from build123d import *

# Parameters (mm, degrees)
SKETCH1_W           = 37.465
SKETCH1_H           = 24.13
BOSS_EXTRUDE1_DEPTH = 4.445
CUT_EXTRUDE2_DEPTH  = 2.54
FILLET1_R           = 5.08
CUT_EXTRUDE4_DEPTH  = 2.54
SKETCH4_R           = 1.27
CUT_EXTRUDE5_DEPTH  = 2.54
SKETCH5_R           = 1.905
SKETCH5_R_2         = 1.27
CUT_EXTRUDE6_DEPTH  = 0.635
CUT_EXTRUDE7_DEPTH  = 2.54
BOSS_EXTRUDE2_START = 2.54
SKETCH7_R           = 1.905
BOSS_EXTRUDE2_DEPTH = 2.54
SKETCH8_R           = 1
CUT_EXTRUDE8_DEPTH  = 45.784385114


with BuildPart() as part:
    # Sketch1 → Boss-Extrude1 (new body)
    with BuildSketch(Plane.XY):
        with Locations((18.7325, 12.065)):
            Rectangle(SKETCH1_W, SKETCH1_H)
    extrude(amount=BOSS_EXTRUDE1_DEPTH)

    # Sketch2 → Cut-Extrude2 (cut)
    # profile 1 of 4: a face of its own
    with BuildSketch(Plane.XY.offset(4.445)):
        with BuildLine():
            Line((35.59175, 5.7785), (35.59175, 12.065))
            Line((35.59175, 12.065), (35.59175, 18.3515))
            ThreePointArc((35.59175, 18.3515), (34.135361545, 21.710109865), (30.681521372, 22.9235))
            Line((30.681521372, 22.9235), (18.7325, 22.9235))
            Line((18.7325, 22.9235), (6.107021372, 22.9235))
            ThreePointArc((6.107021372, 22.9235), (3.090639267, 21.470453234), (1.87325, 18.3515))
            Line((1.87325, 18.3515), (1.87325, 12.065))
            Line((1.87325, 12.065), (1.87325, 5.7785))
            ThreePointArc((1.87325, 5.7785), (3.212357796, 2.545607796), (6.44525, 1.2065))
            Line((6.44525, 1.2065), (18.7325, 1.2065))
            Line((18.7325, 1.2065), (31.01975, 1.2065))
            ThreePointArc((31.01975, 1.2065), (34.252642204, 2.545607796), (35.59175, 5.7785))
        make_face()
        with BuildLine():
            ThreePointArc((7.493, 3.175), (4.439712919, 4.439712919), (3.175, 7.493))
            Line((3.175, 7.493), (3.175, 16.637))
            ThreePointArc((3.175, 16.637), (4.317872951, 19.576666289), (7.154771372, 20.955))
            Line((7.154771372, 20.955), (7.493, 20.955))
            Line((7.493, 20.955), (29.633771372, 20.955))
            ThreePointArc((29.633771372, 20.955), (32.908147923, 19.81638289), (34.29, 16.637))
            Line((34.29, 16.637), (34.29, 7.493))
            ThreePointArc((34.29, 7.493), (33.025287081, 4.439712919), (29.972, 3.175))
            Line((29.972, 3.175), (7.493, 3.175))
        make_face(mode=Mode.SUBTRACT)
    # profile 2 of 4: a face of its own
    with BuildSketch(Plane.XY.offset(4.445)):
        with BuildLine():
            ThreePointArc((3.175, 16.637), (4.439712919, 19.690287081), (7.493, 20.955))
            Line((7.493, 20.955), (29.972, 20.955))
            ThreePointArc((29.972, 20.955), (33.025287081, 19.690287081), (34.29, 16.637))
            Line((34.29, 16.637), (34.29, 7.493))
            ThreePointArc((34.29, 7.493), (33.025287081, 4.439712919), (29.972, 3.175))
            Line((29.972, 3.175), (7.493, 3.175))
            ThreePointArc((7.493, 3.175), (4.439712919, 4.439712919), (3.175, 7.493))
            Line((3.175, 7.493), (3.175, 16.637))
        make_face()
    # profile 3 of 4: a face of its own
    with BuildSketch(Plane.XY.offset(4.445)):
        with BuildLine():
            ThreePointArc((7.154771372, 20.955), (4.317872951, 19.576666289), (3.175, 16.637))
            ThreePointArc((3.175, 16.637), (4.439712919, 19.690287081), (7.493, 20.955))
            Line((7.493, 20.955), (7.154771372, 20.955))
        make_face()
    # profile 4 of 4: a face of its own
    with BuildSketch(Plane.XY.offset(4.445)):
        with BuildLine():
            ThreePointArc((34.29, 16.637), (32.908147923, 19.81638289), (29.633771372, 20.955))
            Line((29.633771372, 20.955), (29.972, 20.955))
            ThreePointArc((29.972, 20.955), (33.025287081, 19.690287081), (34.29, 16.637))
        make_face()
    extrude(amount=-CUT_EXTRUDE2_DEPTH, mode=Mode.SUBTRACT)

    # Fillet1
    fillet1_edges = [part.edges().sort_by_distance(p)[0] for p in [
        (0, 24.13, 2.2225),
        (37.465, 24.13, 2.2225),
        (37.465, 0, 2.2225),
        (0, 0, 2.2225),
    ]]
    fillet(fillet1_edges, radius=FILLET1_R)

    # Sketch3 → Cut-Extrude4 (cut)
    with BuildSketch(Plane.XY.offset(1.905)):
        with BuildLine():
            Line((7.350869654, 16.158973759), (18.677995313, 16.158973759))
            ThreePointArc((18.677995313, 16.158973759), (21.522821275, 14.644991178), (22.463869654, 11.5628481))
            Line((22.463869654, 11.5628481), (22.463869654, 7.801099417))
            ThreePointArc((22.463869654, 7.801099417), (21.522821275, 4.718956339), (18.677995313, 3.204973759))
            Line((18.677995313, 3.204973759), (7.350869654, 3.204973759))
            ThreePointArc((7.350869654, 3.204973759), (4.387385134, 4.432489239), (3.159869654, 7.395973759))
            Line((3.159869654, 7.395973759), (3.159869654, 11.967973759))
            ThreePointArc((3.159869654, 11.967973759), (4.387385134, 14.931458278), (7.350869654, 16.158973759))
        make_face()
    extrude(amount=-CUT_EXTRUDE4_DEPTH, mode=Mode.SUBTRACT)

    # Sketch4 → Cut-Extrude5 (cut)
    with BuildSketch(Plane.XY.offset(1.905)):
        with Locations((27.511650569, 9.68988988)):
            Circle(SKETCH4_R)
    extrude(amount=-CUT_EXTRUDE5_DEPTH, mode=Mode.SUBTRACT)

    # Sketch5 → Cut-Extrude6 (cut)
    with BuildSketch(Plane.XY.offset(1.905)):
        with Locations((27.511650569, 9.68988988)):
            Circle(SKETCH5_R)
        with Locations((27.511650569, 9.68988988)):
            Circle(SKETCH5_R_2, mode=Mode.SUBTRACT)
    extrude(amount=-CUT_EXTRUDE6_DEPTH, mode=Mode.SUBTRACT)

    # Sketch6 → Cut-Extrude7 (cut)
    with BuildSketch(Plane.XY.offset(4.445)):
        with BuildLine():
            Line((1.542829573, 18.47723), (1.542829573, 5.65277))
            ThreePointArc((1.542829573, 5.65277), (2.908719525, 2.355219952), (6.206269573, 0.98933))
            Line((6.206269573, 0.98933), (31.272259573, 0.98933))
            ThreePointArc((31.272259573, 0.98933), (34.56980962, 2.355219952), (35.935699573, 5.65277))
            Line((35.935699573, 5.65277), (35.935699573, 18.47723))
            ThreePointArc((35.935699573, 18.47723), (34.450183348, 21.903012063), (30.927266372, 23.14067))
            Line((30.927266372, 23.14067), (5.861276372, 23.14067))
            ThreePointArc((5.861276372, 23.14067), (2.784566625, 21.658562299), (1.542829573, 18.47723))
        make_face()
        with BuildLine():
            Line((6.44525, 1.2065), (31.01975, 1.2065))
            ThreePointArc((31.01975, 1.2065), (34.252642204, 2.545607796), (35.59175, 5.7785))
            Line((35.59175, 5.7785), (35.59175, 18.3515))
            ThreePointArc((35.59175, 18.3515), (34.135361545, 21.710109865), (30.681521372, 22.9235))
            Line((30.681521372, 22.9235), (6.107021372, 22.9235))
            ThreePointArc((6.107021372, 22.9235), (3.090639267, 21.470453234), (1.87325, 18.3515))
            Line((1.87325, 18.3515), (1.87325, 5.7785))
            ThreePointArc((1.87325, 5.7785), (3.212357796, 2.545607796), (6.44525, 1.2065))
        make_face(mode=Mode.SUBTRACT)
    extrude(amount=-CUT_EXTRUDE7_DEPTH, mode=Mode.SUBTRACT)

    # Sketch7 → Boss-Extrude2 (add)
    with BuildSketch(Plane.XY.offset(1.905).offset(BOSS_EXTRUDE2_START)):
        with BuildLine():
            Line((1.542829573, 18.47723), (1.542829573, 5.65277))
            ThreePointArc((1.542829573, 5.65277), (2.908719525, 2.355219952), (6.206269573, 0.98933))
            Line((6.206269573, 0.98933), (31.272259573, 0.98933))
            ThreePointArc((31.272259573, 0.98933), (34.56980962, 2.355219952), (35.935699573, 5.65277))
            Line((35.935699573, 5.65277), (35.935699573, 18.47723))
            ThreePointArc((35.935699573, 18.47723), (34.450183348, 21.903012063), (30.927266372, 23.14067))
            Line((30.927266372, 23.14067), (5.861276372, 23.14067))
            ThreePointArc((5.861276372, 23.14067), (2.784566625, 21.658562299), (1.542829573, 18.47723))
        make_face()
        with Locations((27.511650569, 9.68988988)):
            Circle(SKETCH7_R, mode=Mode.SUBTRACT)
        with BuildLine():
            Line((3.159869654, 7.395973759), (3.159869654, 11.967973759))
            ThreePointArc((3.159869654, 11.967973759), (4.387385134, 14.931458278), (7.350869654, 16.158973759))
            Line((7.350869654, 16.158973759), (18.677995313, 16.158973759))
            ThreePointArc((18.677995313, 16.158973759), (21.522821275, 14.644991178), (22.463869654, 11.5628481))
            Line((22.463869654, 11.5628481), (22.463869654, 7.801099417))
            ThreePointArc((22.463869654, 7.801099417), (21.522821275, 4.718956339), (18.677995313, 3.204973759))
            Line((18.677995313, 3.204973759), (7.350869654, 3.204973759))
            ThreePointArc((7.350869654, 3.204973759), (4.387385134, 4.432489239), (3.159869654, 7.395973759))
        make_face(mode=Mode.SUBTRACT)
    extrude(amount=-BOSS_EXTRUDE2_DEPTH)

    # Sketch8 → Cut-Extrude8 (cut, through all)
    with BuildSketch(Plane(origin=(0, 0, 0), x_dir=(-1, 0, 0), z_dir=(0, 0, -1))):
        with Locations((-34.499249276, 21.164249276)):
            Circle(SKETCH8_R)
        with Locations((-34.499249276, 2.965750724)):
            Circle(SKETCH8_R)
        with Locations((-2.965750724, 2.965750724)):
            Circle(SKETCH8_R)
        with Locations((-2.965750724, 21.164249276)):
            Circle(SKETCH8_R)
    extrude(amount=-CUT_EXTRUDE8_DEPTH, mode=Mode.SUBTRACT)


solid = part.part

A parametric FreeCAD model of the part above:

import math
import FreeCAD as App
import Part
import Sketcher
Q = App.Units.Quantity


def edges_at(feature, points):
    """Names of the edges that pass closest to the given points."""
    edges = feature.Shape.Edges
    near = lambda p: min(range(len(edges)), key=lambda i: edges[i].distToShape(Part.Vertex(*p))[0])
    return sorted({f"Edge{near(p) + 1}" for p in points})

doc = App.newDocument("Part")
body = doc.addObject("PartDesign::Body", "Body")

# Sketch on XY plane
sketch1 = body.newObject("Sketcher::SketchObject", "Sketch")
sketch1.AttachmentSupport = (doc.getObject("XY_Plane"), [""])
sketch1.MapMode = "FlatFace"
sketch1.addGeometry([
    Part.LineSegment(App.Vector(0, 24, 0), App.Vector(0, 0, 0)),
    Part.LineSegment(App.Vector(0, 0, 0), App.Vector(37, 0, 0)),
    Part.LineSegment(App.Vector(37, 0, 0), App.Vector(37, 24, 0)),
    Part.LineSegment(App.Vector(37, 24, 0), App.Vector(0, 24, 0)),
], False)
sketch1.addConstraint([
    Sketcher.Constraint("Coincident", 0, 2, 1, 1),
    Sketcher.Constraint("Coincident", 1, 2, 2, 1),
    Sketcher.Constraint("Coincident", 2, 2, 3, 1),
    Sketcher.Constraint("Coincident", 3, 2, 0, 1),
    Sketcher.Constraint("Vertical", 0),
    Sketcher.Constraint("Horizontal", 1),
    Sketcher.Constraint("Vertical", 2),
    Sketcher.Constraint("Horizontal", 3),
    Sketcher.Constraint("Coincident", 0, 2, -1, 1),
    Sketcher.Constraint("DistanceY", 0, 2, 0, 1, Q("0.95 in")),
    Sketcher.Constraint("DistanceX", 1, 1, 1, 2, Q("1.475 in")),
])
pad1 = body.newObject("PartDesign::Pad", "Pad")
pad1.Profile = sketch1
pad1.Length = Q("0.175 in")

# Sketch on XY plane
sketch2 = body.newObject("Sketcher::SketchObject", "Sketch001")
sketch2.AttachmentSupport = (doc.getObject("XY_Plane"), [""])
sketch2.MapMode = "FlatFace"
sketch2.AttachmentOffset = App.Placement(App.Vector(0, 0, 0.175 * 25.4), App.Rotation())
sketch2.addGeometry([
    Part.LineSegment(App.Vector(35.6, 5.8, 0), App.Vector(35.6, 18.4, 0)),  # 0
    Part.ArcOfCircle(Part.Circle(App.Vector(31, 18.4, 0), App.Vector(0, 0, 1), 4.6), math.radians(0), math.radians(94)),  # 1
    Part.LineSegment(App.Vector(30.7, 22.9, 0), App.Vector(6.1, 22.9, 0)),  # 2
    Part.ArcOfCircle(Part.Circle(App.Vector(6.4, 18.4, 0), App.Vector(0, 0, 1), 4.6), math.radians(94), math.radians(180)),  # 3
    Part.LineSegment(App.Vector(1.9, 18.4, 0), App.Vector(1.9, 5.8, 0)),  # 4
    Part.ArcOfCircle(Part.Circle(App.Vector(6.4, 5.8, 0), App.Vector(0, 0, 1), 4.6), math.radians(180), math.radians(270)),  # 5
    Part.LineSegment(App.Vector(6.4, 1.2, 0), App.Vector(31, 1.2, 0)),  # 6
    Part.ArcOfCircle(Part.Circle(App.Vector(31, 5.8, 0), App.Vector(0, 0, 1), 4.6), math.radians(-90), math.radians(0)),  # 7
], False)
sketch2.addConstraint([
    Sketcher.Constraint("Coincident", 0, 2, 1, 1),
    Sketcher.Constraint("Coincident", 1, 2, 2, 1),
    Sketcher.Constraint("Coincident", 2, 2, 3, 1),
    Sketcher.Constraint("Coincident", 3, 2, 4, 1),
    Sketcher.Constraint("Tangent", 4, 2, 5, 1),
    Sketcher.Constraint("Tangent", 5, 2, 6, 1),
    Sketcher.Constraint("Tangent", 6, 2, 7, 1),
    Sketcher.Constraint("Tangent", 7, 2, 0, 1),
    Sketcher.Constraint("Vertical", 0),
    Sketcher.Constraint("Horizontal", 2),
    Sketcher.Constraint("Vertical", 4),
    Sketcher.Constraint("Horizontal", 6),
    Sketcher.Constraint("Equal", 1, 3),
    Sketcher.Constraint("Equal", 3, 5),
    Sketcher.Constraint("Equal", 5, 7),
    Sketcher.Constraint("Horizontal", 0, 2, 3, 2),
    Sketcher.Constraint("Equal", 2, 6),
    Sketcher.Constraint("Radius", 1, Q("0.18 in")),
    Sketcher.Constraint("DistanceY", 0, 1, 0, 2, Q("0.495 in")),
    Sketcher.Constraint("DistanceY", 0, 2, 1, 2, Q("0.18 in")),
    Sketcher.Constraint("DistanceX", 2, 2, 2, 1, Q("0.9675 in")),
    Sketcher.Constraint("DistanceY", -1, 1, 5, 3, Q("0.2275 in")),
    Sketcher.Constraint("DistanceY", -1, 1, 1, 3, Q("18.364029 mm")),
    Sketcher.Constraint("DistanceX", -1, 1, 5, 3, Q("6.44525 mm")),
])
pocket1 = body.newObject("PartDesign::Pocket", "Pocket")
pocket1.Profile = sketch2
pocket1.Length = Q("0.1 in")
doc.recompute()

fillet = body.newObject("PartDesign::Fillet", "Fillet")
fillet.Base = (pocket1, edges_at(pocket1, [
    (0, 24.13, 2.223),
    (37.465, 24.13, 2.223),
    (37.465, 0, 2.223),
    (0, 0, 2.223),
]))
fillet.Radius = Q("0.2 in")

# Sketch on XY plane
sketch3 = body.newObject("Sketcher::SketchObject", "Sketch002")
sketch3.AttachmentSupport = (doc.getObject("XY_Plane"), [""])
sketch3.MapMode = "FlatFace"
sketch3.AttachmentOffset = App.Placement(App.Vector(0, 0, 0.075 * 25.4), App.Rotation())
sketch3.addGeometry([
    Part.LineSegment(App.Vector(18.7, 16.2, 0), App.Vector(7.4, 16.2, 0)),  # 0
    Part.ArcOfCircle(Part.Circle(App.Vector(7.4, 12, 0), App.Vector(0, 0, 1), 4.2), math.radians(90), math.radians(180)),  # 1
    Part.LineSegment(App.Vector(3.2, 12, 0), App.Vector(3.2, 7.4, 0)),  # 2
    Part.ArcOfCircle(Part.Circle(App.Vector(7.4, 7.4, 0), App.Vector(0, 0, 1), 4.2), math.radians(180), math.radians(270)),  # 3
    Part.LineSegment(App.Vector(7.4, 3.2, 0), App.Vector(18.7, 3.2, 0)),  # 4
    Part.ArcOfCircle(Part.Circle(App.Vector(18.3, 7.4, 0), App.Vector(0, 0, 1), 4.2), math.radians(-84), math.radians(6)),  # 5
    Part.LineSegment(App.Vector(22.5, 7.8, 0), App.Vector(22.5, 11.6, 0)),  # 6
    Part.ArcOfCircle(Part.Circle(App.Vector(18.3, 12, 0), App.Vector(0, 0, 1), 4.2), math.radians(-6), math.radians(84)),  # 7
], False)
sketch3.addConstraint([
    Sketcher.Constraint("Tangent", 0, 2, 1, 1),
    Sketcher.Constraint("Tangent", 1, 2, 2, 1),
    Sketcher.Constraint("Tangent", 2, 2, 3, 1),
    Sketcher.Constraint("Tangent", 3, 2, 4, 1),
    Sketcher.Constraint("Coincident", 4, 2, 5, 1),
    Sketcher.Constraint("Coincident", 5, 2, 6, 1),
    Sketcher.Constraint("Coincident", 6, 2, 7, 1),
    Sketcher.Constraint("Coincident", 7, 2, 0, 1),
    Sketcher.Constraint("Horizontal", 0),
    Sketcher.Constraint("Vertical", 2),
    Sketcher.Constraint("Horizontal", 4),
    Sketcher.Constraint("Vertical", 6),
    Sketcher.Constraint("Equal", 1, 3),
    Sketcher.Constraint("Equal", 5, 7),
    Sketcher.Constraint("Horizontal", 3, 3, 5, 3),
    Sketcher.Constraint("Horizontal", 1, 3, 7, 3),
    Sketcher.Constraint("Vertical", 5, 3, 7, 3),
    Sketcher.Constraint("Radius", 1, Q("0.165 in")),
    Sketcher.Constraint("DistanceY", 2, 2, 2, 1, Q("0.18 in")),
    Sketcher.Constraint("DistanceX", 3, 3, 5, 3, Q("0.43 in")),
    Sketcher.Constraint("DistanceX", 5, 3, 5, 2, Q("0.165 in")),
    Sketcher.Constraint("Radius", 5, Q("4.210535 mm")),
    Sketcher.Constraint("DistanceY", -1, 1, 5, 2, Q("7.801099 mm")),
    Sketcher.Constraint("DistanceX", -1, 1, 1, 3, Q("7.35087 mm")),
])
pocket2 = body.newObject("PartDesign::Pocket", "Pocket001")
pocket2.Profile = sketch3
pocket2.Length = Q("0.1 in")

# Sketch on XY plane
sketch4 = body.newObject("Sketcher::SketchObject", "Sketch003")
sketch4.AttachmentSupport = (doc.getObject("XY_Plane"), [""])
sketch4.MapMode = "FlatFace"
sketch4.AttachmentOffset = App.Placement(App.Vector(0, 0, 0.075 * 25.4), App.Rotation())
sketch4.addGeometry(Part.Circle(App.Vector(27.5, 9.7, 0), App.Vector(0, 0, 1), 1.3), False)
sketch4.addConstraint([
    Sketcher.Constraint("Diameter", 0, Q("0.1 in")),
    Sketcher.Constraint("DistanceX", -1, 1, 0, 3, Q("27.511651 mm")),
    Sketcher.Constraint("DistanceY", -1, 1, 0, 3, Q("9.68989 mm")),
])
pocket3 = body.newObject("PartDesign::Pocket", "Pocket002")
pocket3.Profile = sketch4
pocket3.Length = Q("0.1 in")

# Sketch on XY plane
sketch5 = body.newObject("Sketcher::SketchObject", "Sketch004")
sketch5.AttachmentSupport = (doc.getObject("XY_Plane"), [""])
sketch5.MapMode = "FlatFace"
sketch5.AttachmentOffset = App.Placement(App.Vector(0, 0, 0.075 * 25.4), App.Rotation())
sketch5.addGeometry([
    Part.Circle(App.Vector(27.5, 9.7, 0), App.Vector(0, 0, 1), 1.9),
    Part.Circle(App.Vector(27.5, 9.7, 0), App.Vector(0, 0, 1), 1.3),
], False)
sketch5.addConstraint([
    Sketcher.Constraint("Coincident", 1, 3, 0, 3),
    Sketcher.Constraint("Diameter", 1, Q("0.1 in")),
    Sketcher.Constraint("Diameter", 0, Q("0.15 in")),
    Sketcher.Constraint("DistanceX", -1, 1, 0, 3, Q("27.511651 mm")),
    Sketcher.Constraint("DistanceY", -1, 1, 0, 3, Q("9.68989 mm")),
])
pocket4 = body.newObject("PartDesign::Pocket", "Pocket003")
pocket4.Profile = sketch5
pocket4.Length = Q("0.025 in")

# Sketch on XY plane
sketch6 = body.newObject("Sketcher::SketchObject", "Sketch005")
sketch6.AttachmentSupport = (doc.getObject("XY_Plane"), [""])
sketch6.MapMode = "FlatFace"
sketch6.AttachmentOffset = App.Placement(App.Vector(0, 0, 0.175 * 25.4), App.Rotation())
sketch6.addGeometry([
    Part.LineSegment(App.Vector(1.5, 18.5, 0), App.Vector(1.5, 5.7, 0)),  # 0
    Part.ArcOfCircle(Part.Circle(App.Vector(6.2, 5.7, 0), App.Vector(0, 0, 1), 4.7), math.radians(180), math.radians(270)),  # 1
    Part.LineSegment(App.Vector(6.2, 1, 0), App.Vector(31.3, 1, 0)),  # 2
    Part.ArcOfCircle(Part.Circle(App.Vector(31.3, 5.7, 0), App.Vector(0, 0, 1), 4.7), math.radians(-90), math.radians(0)),  # 3
    Part.LineSegment(App.Vector(35.9, 5.7, 0), App.Vector(35.9, 18.5, 0)),  # 4
    Part.ArcOfCircle(Part.Circle(App.Vector(31.3, 18.5, 0), App.Vector(0, 0, 1), 4.7), math.radians(0), math.radians(94)),  # 5
    Part.LineSegment(App.Vector(30.9, 23.1, 0), App.Vector(5.9, 23.1, 0)),  # 6
    Part.ArcOfCircle(Part.Circle(App.Vector(6.2, 18.5, 0), App.Vector(0, 0, 1), 4.7), math.radians(94), math.radians(180)),  # 7
    Part.LineSegment(App.Vector(31, 1.2, 0), App.Vector(6.4, 1.2, 0)),  # 8
    Part.ArcOfCircle(Part.Circle(App.Vector(6.4, 5.8, 0), App.Vector(0, 0, 1), 4.6), math.radians(180), math.radians(270)),  # 9
    Part.LineSegment(App.Vector(1.9, 5.8, 0), App.Vector(1.9, 18.4, 0)),  # 10
    Part.ArcOfCircle(Part.Circle(App.Vector(6.4, 18.4, 0), App.Vector(0, 0, 1), 4.6), math.radians(94), math.radians(180)),  # 11
    Part.LineSegment(App.Vector(6.1, 22.9, 0), App.Vector(30.7, 22.9, 0)),  # 12
    Part.ArcOfCircle(Part.Circle(App.Vector(31, 18.4, 0), App.Vector(0, 0, 1), 4.6), math.radians(0), math.radians(94)),  # 13
    Part.LineSegment(App.Vector(35.6, 18.4, 0), App.Vector(35.6, 5.8, 0)),  # 14
    Part.ArcOfCircle(Part.Circle(App.Vector(31, 5.8, 0), App.Vector(0, 0, 1), 4.6), math.radians(-90), math.radians(0)),  # 15
], False)
sketch6.addConstraint([
    Sketcher.Constraint("Tangent", 0, 2, 1, 1),
    Sketcher.Constraint("Tangent", 1, 2, 2, 1),
    Sketcher.Constraint("Tangent", 2, 2, 3, 1),
    Sketcher.Constraint("Tangent", 3, 2, 4, 1),
    Sketcher.Constraint("Coincident", 4, 2, 5, 1),
    Sketcher.Constraint("Coincident", 5, 2, 6, 1),
    Sketcher.Constraint("Coincident", 6, 2, 7, 1),
    Sketcher.Constraint("Coincident", 7, 2, 0, 1),
    Sketcher.Constraint("Tangent", 8, 2, 9, 2),
    Sketcher.Constraint("Tangent", 9, 1, 10, 1),
    Sketcher.Constraint("Coincident", 10, 2, 11, 2),
    Sketcher.Constraint("Coincident", 11, 1, 12, 1),
    Sketcher.Constraint("Coincident", 12, 2, 13, 2),
    Sketcher.Constraint("Coincident", 13, 1, 14, 1),
    Sketcher.Constraint("Tangent", 14, 2, 15, 2),
    Sketcher.Constraint("Tangent", 15, 1, 8, 1),
    Sketcher.Constraint("Vertical", 0),
    Sketcher.Constraint("Horizontal", 2),
    Sketcher.Constraint("Vertical", 4),
    Sketcher.Constraint("Horizontal", 6),
    Sketcher.Constraint("Horizontal", 8),
    Sketcher.Constraint("Vertical", 10),
    Sketcher.Constraint("Horizontal", 12),
    Sketcher.Constraint("Vertical", 14),
    Sketcher.Constraint("Equal", 1, 3),
    Sketcher.Constraint("Equal", 3, 5),
    Sketcher.Constraint("Equal", 5, 7),
    Sketcher.Constraint("Equal", 9, 11),
    Sketcher.Constraint("Equal", 11, 13),
    Sketcher.Constraint("Equal", 13, 15),
    Sketcher.Constraint("Horizontal", 4, 2, 7, 2),
    Sketcher.Constraint("Horizontal", 10, 2, 13, 1),
    Sketcher.Constraint("Equal", 2, 6),
    Sketcher.Constraint("Equal", 8, 12),
    Sketcher.Constraint("Radius", 9, Q("0.18 in")),
    Sketcher.Constraint("Radius", 1, Q("0.1836 in")),
    Sketcher.Constraint("DistanceY", 10, 1, 10, 2, Q("0.495 in")),
    Sketcher.Constraint("DistanceY", 10, 2, 11, 1, Q("0.18 in")),
    Sketcher.Constraint("DistanceX", 8, 2, 8, 1, Q("0.9675 in")),
    Sketcher.Constraint("DistanceY", 0, 2, 0, 1, Q("0.5049 in")),
    Sketcher.Constraint("DistanceY", -1, 1, 9, 3, Q("0.2275 in")),
    Sketcher.Constraint("DistanceY", 4, 2, 5, 2, Q("0.1836 in")),
    Sketcher.Constraint("DistanceX", 2, 1, 2, 2, Q("25.06599 mm")),
    Sketcher.Constraint("DistanceX", -1, 1, 3, 2, Q("35.9357 mm")),
    Sketcher.Constraint("DistanceY", 2, 2, 13, 3, Q("17.374699 mm")),
    Sketcher.Constraint("DistanceX", 5, 2, 13, 3, Q("0.092501 mm")),
    Sketcher.Constraint("DistanceY", -1, 1, 1, 3, Q("5.65277 mm")),
    Sketcher.Constraint("DistanceY", -1, 1, 5, 3, Q("18.49001 mm")),
])
pocket5 = body.newObject("PartDesign::Pocket", "Pocket004")
pocket5.Profile = sketch6
pocket5.Length = Q("0.1 in")

# Sketch on XY plane
sketch7 = body.newObject("Sketcher::SketchObject", "Sketch006")
sketch7.AttachmentSupport = (doc.getObject("XY_Plane"), [""])
sketch7.MapMode = "FlatFace"
sketch7.AttachmentOffset = App.Placement(App.Vector(0, 0, 0.175 * 25.4), App.Rotation())
sketch7.addGeometry([
    Part.LineSegment(App.Vector(1.5, 18.5, 0), App.Vector(1.5, 5.7, 0)),  # 0
    Part.ArcOfCircle(Part.Circle(App.Vector(6.2, 5.7, 0), App.Vector(0, 0, 1), 4.7), math.radians(180), math.radians(270)),  # 1
    Part.LineSegment(App.Vector(6.2, 1, 0), App.Vector(31.3, 1, 0)),  # 2
    Part.ArcOfCircle(Part.Circle(App.Vector(31.3, 5.7, 0), App.Vector(0, 0, 1), 4.7), math.radians(-90), math.radians(0)),  # 3
    Part.LineSegment(App.Vector(35.9, 5.7, 0), App.Vector(35.9, 18.5, 0)),  # 4
    Part.ArcOfCircle(Part.Circle(App.Vector(31.3, 18.5, 0), App.Vector(0, 0, 1), 4.7), math.radians(0), math.radians(94)),  # 5
    Part.LineSegment(App.Vector(30.9, 23.1, 0), App.Vector(5.9, 23.1, 0)),  # 6
    Part.ArcOfCircle(Part.Circle(App.Vector(6.2, 18.5, 0), App.Vector(0, 0, 1), 4.7), math.radians(94), math.radians(180)),  # 7
    Part.ArcOfCircle(Part.Circle(App.Vector(7.4, 7.4, 0), App.Vector(0, 0, 1), 4.2), math.radians(180), math.radians(270)),  # 8
    Part.LineSegment(App.Vector(3.2, 7.4, 0), App.Vector(3.2, 12, 0)),  # 9
    Part.ArcOfCircle(Part.Circle(App.Vector(7.4, 12, 0), App.Vector(0, 0, 1), 4.2), math.radians(90), math.radians(180)),  # 10
    Part.LineSegment(App.Vector(7.4, 16.2, 0), App.Vector(18.7, 16.2, 0)),  # 11
    Part.ArcOfCircle(Part.Circle(App.Vector(18.3, 12, 0), App.Vector(0, 0, 1), 4.2), math.radians(-6), math.radians(84)),  # 12
    Part.LineSegment(App.Vector(22.5, 11.6, 0), App.Vector(22.5, 7.8, 0)),  # 13
    Part.ArcOfCircle(Part.Circle(App.Vector(18.3, 7.4, 0), App.Vector(0, 0, 1), 4.2), math.radians(-84), math.radians(6)),  # 14
    Part.LineSegment(App.Vector(18.7, 3.2, 0), App.Vector(7.4, 3.2, 0)),  # 15
    Part.Circle(App.Vector(27.5, 9.7, 0), App.Vector(0, 0, 1), 1.9),  # 16
], False)
sketch7.addConstraint([
    Sketcher.Constraint("Tangent", 0, 2, 1, 1),
    Sketcher.Constraint("Tangent", 1, 2, 2, 1),
    Sketcher.Constraint("Tangent", 2, 2, 3, 1),
    Sketcher.Constraint("Tangent", 3, 2, 4, 1),
    Sketcher.Constraint("Coincident", 4, 2, 5, 1),
    Sketcher.Constraint("Coincident", 5, 2, 6, 1),
    Sketcher.Constraint("Coincident", 6, 2, 7, 1),
    Sketcher.Constraint("Coincident", 7, 2, 0, 1),
    Sketcher.Constraint("Tangent", 8, 1, 9, 1),
    Sketcher.Constraint("Tangent", 9, 2, 10, 2),
    Sketcher.Constraint("Tangent", 10, 1, 11, 1),
    Sketcher.Constraint("Coincident", 11, 2, 12, 2),
    Sketcher.Constraint("Coincident", 12, 1, 13, 1),
    Sketcher.Constraint("Coincident", 13, 2, 14, 2),
    Sketcher.Constraint("Coincident", 14, 1, 15, 1),
    Sketcher.Constraint("Tangent", 15, 2, 8, 2),
    Sketcher.Constraint("Vertical", 0),
    Sketcher.Constraint("Horizontal", 2),
    Sketcher.Constraint("Vertical", 4),
    Sketcher.Constraint("Horizontal", 6),
    Sketcher.Constraint("Vertical", 9),
    Sketcher.Constraint("Horizontal", 11),
    Sketcher.Constraint("Vertical", 13),
    Sketcher.Constraint("Horizontal", 15),
    Sketcher.Constraint("Equal", 1, 3),
    Sketcher.Constraint("Equal", 3, 5),
    Sketcher.Constraint("Equal", 5, 7),
    Sketcher.Constraint("Equal", 8, 10),
    Sketcher.Constraint("Equal", 12, 14),
    Sketcher.Constraint("Horizontal", 10, 3, 12, 3),
    Sketcher.Constraint("Horizontal", 8, 3, 14, 3),
    Sketcher.Constraint("Horizontal", 4, 2, 7, 2),
    Sketcher.Constraint("Vertical", 12, 3, 14, 3),
    Sketcher.Constraint("Equal", 2, 6),
    Sketcher.Constraint("Diameter", 16, Q("0.15 in")),
    Sketcher.Constraint("Radius", 8, Q("0.165 in")),
    Sketcher.Constraint("DistanceY", 9, 1, 9, 2, Q("0.18 in")),
    Sketcher.Constraint("Radius", 1, Q("0.1836 in")),
    Sketcher.Constraint("DistanceX", 10, 3, 12, 3, Q("0.43 in")),
    Sketcher.Constraint("DistanceY", 0, 2, 0, 1, Q("0.5049 in")),
    Sketcher.Constraint("DistanceX", 12, 3, 12, 1, Q("0.165 in")),
    Sketcher.Constraint("Radius", 12, Q("4.210535 mm")),
    Sketcher.Constraint("DistanceY", 4, 2, 5, 2, Q("0.1836 in")),
    Sketcher.Constraint("DistanceX", 2, 1, 2, 2, Q("25.06599 mm")),
    Sketcher.Constraint("DistanceX", -1, 1, 3, 2, Q("35.9357 mm")),
    Sketcher.Constraint("DistanceY", -1, 1, 13, 2, Q("7.801099 mm")),
    Sketcher.Constraint("DistanceX", 1, 3, 8, 3, Q("1.1446 mm")),
    Sketcher.Constraint("DistanceY", -1, 1, 1, 3, Q("5.65277 mm")),
    Sketcher.Constraint("DistanceY", -1, 1, 5, 3, Q("18.49001 mm")),
    Sketcher.Constraint("DistanceX", -1, 1, 16, 3, Q("27.511651 mm")),
    Sketcher.Constraint("DistanceY", -1, 1, 16, 3, Q("9.68989 mm")),
])
pad2 = body.newObject("PartDesign::Pad", "Pad001")
pad2.Profile = sketch7
pad2.Length = Q("0.1 in")
pad2.Reversed = True

# Sketch on XY plane
sketch8 = body.newObject("Sketcher::SketchObject", "Sketch007")
sketch8.AttachmentSupport = (doc.getObject("XY_Plane"), [""])
sketch8.MapMode = "FlatFace"
sketch8.addGeometry([
    Part.Circle(App.Vector(34.5, 21.2, 0), App.Vector(0, 0, 1), 1),
    Part.Circle(App.Vector(34.5, 3, 0), App.Vector(0, 0, 1), 1),
    Part.Circle(App.Vector(3, 3, 0), App.Vector(0, 0, 1), 1),
    Part.Circle(App.Vector(3, 21.2, 0), App.Vector(0, 0, 1), 1),
], False)
sketch8.addConstraint([
    Sketcher.Constraint("Equal", 0, 1),
    Sketcher.Constraint("Equal", 1, 2),
    Sketcher.Constraint("Equal", 2, 3),
    Sketcher.Constraint("Horizontal", 1, 3, 2, 3),
    Sketcher.Constraint("Horizontal", 0, 3, 3, 3),
    Sketcher.Constraint("Vertical", 0, 3, 1, 3),
    Sketcher.Constraint("Vertical", 2, 3, 3, 3),
    Sketcher.Constraint("Diameter", 0, Q("2 mm")),
    Sketcher.Constraint("DistanceY", 1, 3, 0, 3, Q("18.198499 mm")),
    Sketcher.Constraint("DistanceX", 2, 3, 1, 3, Q("31.533499 mm")),
    Sketcher.Constraint("DistanceX", -1, 1, 0, 3, Q("34.499249 mm")),
    Sketcher.Constraint("DistanceY", -1, 1, 0, 3, Q("21.164249 mm")),
])
pocket6 = body.newObject("PartDesign::Pocket", "Pocket005")
pocket6.Profile = sketch8
pocket6.Type = "ThroughAll"
pocket6.Reversed = True

doc.recompute()
